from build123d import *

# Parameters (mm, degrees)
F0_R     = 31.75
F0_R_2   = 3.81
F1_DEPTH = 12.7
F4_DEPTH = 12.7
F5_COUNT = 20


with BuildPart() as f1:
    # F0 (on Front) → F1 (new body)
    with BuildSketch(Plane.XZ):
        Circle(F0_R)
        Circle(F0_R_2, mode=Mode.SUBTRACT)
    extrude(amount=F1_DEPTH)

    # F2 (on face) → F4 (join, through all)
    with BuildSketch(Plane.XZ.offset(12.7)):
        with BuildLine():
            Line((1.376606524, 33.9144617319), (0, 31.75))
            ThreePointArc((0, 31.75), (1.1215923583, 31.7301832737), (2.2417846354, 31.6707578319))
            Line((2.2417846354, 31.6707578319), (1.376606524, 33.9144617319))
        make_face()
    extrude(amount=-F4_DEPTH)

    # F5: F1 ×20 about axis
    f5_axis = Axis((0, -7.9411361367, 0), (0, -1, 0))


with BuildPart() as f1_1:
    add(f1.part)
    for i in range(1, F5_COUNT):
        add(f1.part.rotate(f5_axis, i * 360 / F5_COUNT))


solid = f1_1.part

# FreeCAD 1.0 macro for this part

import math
import FreeCAD as App
import Part
import Sketcher

V = App.Vector
Q = App.Units.Quantity

doc = App.newDocument("Part")
body = doc.addObject("PartDesign::Body", "Body")

# Sketch on XZ plane
sketch1 = body.newObject("Sketcher::SketchObject", "Sketch")
sketch1.AttachmentSupport = (doc.getObject("XZ_Plane"), [""])
sketch1.MapMode = "FlatFace"
sketch1.addGeometry([
    Part.Circle(V(0, 0, 0), V(0, 0, 1), 31.8),
    Part.Circle(V(0, 0, 0), V(0, 0, 1), 3.8),
], False)
sketch1.addConstraint([
    Sketcher.Constraint("Coincident", 0, 3, -1, 1),
    Sketcher.Constraint("Coincident", 1, 3, -1, 1),
    Sketcher.Constraint("Diameter", 0, Q("2.5 in")),
    Sketcher.Constraint("Diameter", 1, Q("0.3 in")),
])
pad1 = body.newObject("PartDesign::Pad", "Pad")
pad1.Profile = sketch1
pad1.Length = Q("0.5 in")

# Sketch on XZ plane
sketch2 = body.newObject("Sketcher::SketchObject", "Sketch001")
sketch2.AttachmentSupport = (doc.getObject("XZ_Plane"), [""])
sketch2.MapMode = "FlatFace"
sketch2.AttachmentOffset = App.Placement(V(0, 0, 0.5 * 25.4), App.Rotation())
sketch2.addGeometry([
    Part.LineSegment(V(1.4, 33.9, 0), V(0, 31.8, 0)),
    Part.ArcOfCircle(Part.Circle(V(0, 0, 0), V(0, 0, 1), 31.7), math.radians(85.95), math.radians(90)),
    Part.LineSegment(V(2.2, 31.7, 0), V(1.4, 33.9, 0)),
], False)
sketch2.addConstraint([
    Sketcher.Constraint("Coincident", 0, 2, 1, 2),
    Sketcher.Constraint("Coincident", 1, 1, 2, 1),
    Sketcher.Constraint("Coincident", 2, 2, 0, 1),
    Sketcher.Constraint("Coincident", 1, 3, -1, 1),
    Sketcher.Constraint("PointOnObject", 0, 2, -2),
    Sketcher.Constraint("Radius", 1, Q("1.25 in")),
    Sketcher.Constraint("Distance", 0, Q("2.565139 mm")),
    Sketcher.Constraint("DistanceY", -1, 1, 2, 2, Q("33.914462 mm")),
    Sketcher.Constraint("DistanceX", 2, 2, 1, 1, Q("0.865178 mm")),
])
pad2 = body.newObject("PartDesign::Pad", "Pad001")
pad2.Profile = sketch2
pad2.Length = Q("0.5 in")
pad2.Reversed = True
body2 = doc.addObject("PartDesign::Body", "Body001")
doc.recompute()

body2.BaseFeature = body
doc.recompute()

body3 = doc.addObject("PartDesign::Body", "Body002")
body3.BaseFeature = body
body3.Placement = App.Placement(V(0, 0, 0), App.Rotation(V(0, -1, 0), 18))
boolean = body2.newObject("PartDesign::Boolean", "Boolean")
boolean.Type = "Fuse"
boolean.addObjects([body3])
doc.recompute()

body4 = doc.addObject("PartDesign::Body", "Body003")
body4.BaseFeature = body
body4.Placement = App.Placement(V(0, 0, 0), App.Rotation(V(0, -1, 0), 36))
boolean2 = body2.newObject("PartDesign::Boolean", "Boolean001")
boolean2.Type = "Fuse"
boolean2.addObjects([body4])
doc.recompute()

body5 = doc.addObject("PartDesign::Body", "Body004")
body5.BaseFeature = body
body5.Placement = App.Placement(V(0, 0, 0), App.Rotation(V(0, -1, 0), 54))
boolean3 = body2.newObject("PartDesign::Boolean", "Boolean002")
boolean3.Type = "Fuse"
boolean3.addObjects([body5])
doc.recompute()

body6 = doc.addObject("PartDesign::Body", "Body005")
body6.BaseFeature = body
body6.Placement = App.Placement(V(0, 0, 0), App.Rotation(V(0, -1, 0), 72))
boolean4 = body2.newObject("PartDesign::Boolean", "Boolean003")
boolean4.Type = "Fuse"
boolean4.addObjects([body6])
doc.recompute()

body7 = doc.addObject("PartDesign::Body", "Body006")
body7.BaseFeature = body
body7.Placement = App.Placement(V(0, 0, 0), App.Rotation(V(0, -1, 0), 90))
boolean5 = body2.newObject("PartDesign::Boolean", "Boolean004")
boolean5.Type = "Fuse"
boolean5.addObjects([body7])
doc.recompute()

body8 = doc.addObject("PartDesign::Body", "Body007")
body8.BaseFeature = body
body8.Placement = App.Placement(V(0, 0, 0), App.Rotation(V(0, -1, 0), 108))
boolean6 = body2.newObject("PartDesign::Boolean", "Boolean005")
boolean6.Type = "Fuse"
boolean6.addObjects([body8])
doc.recompute()

body9 = doc.addObject("PartDesign::Body", "Body008")
body9.BaseFeature = body
body9.Placement = App.Placement(V(0, 0, 0), App.Rotation(V(0, -1, 0), 126))
boolean7 = body2.newObject("PartDesign::Boolean", "Boolean006")
boolean7.Type = "Fuse"
boolean7.addObjects([body9])
doc.recompute()

body10 = doc.addObject("PartDesign::Body", "Body009")
body10.BaseFeature = body
body10.Placement = App.Placement(V(0, 0, 0), App.Rotation(V(0, -1, 0), 144))
boolean8 = body2.newObject("PartDesign::Boolean", "Boolean007")
boolean8.Type = "Fuse"
boolean8.addObjects([body10])
doc.recompute()

body11 = doc.addObject("PartDesign::Body", "Body010")
body11.BaseFeature = body
body11.Placement = App.Placement(V(0, 0, 0), App.Rotation(V(0, -1, 0), 162))
boolean9 = body2.newObject("PartDesign::Boolean", "Boolean008")
boolean9.Type = "Fuse"
boolean9.addObjects([body11])
doc.recompute()

body12 = doc.addObject("PartDesign::Body", "Body011")
body12.BaseFeature = body
body12.Placement = App.Placement(V(0, 0, 0), App.Rotation(V(0, -1, 0), 180))
boolean10 = body2.newObject("PartDesign::Boolean", "Boolean009")
boolean10.Type = "Fuse"
boolean10.addObjects([body12])
doc.recompute()

body13 = doc.addObject("PartDesign::Body", "Body012")
body13.BaseFeature = body
body13.Placement = App.Placement(V(0, 0, 0), App.Rotation(V(0, -1, 0), 198))
boolean11 = body2.newObject("PartDesign::Boolean", "Boolean010")
boolean11.Type = "Fuse"
boolean11.addObjects([body13])
doc.recompute()

body14 = doc.addObject("PartDesign::Body", "Body013")
body14.BaseFeature = body
body14.Placement = App.Placement(V(0, 0, 0), App.Rotation(V(0, -1, 0), 216))
boolean12 = body2.newObject("PartDesign::Boolean", "Boolean011")
boolean12.Type = "Fuse"
boolean12.addObjects([body14])
doc.recompute()

body15 = doc.addObject("PartDesign::Body", "Body014")
body15.BaseFeature = body
body15.Placement = App.Placement(V(0, 0, 0), App.Rotation(V(0, -1, 0), 234))
boolean13 = body2.newObject("PartDesign::Boolean", "Boolean012")
boolean13.Type = "Fuse"
boolean13.addObjects([body15])
doc.recompute()

body16 = doc.addObject("PartDesign::Body", "Body015")
body16.BaseFeature = body
body16.Placement = App.Placement(V(0, 0, 0), App.Rotation(V(0, -1, 0), 252))
boolean14 = body2.newObject("PartDesign::Boolean", "Boolean013")
boolean14.Type = "Fuse"
boolean14.addObjects([body16])
doc.recompute()

body17 = doc.addObject("PartDesign::Body", "Body016")
body17.BaseFeature = body
body17.Placement = App.Placement(V(0, 0, 0), App.Rotation(V(0, -1, 0), 270))
boolean15 = body2.newObject("PartDesign::Boolean", "Boolean014")
boolean15.Type = "Fuse"
boolean15.addObjects([body17])
doc.recompute()

body18 = doc.addObject("PartDesign::Body", "Body017")
body18.BaseFeature = body
body18.Placement = App.Placement(V(0, 0, 0), App.Rotation(V(0, -1, 0), 288))
boolean16 = body2.newObject("PartDesign::Boolean", "Boolean015")
boolean16.Type = "Fuse"
boolean16.addObjects([body18])
doc.recompute()

body19 = doc.addObject("PartDesign::Body", "Body018")
body19.BaseFeature = body
body19.Placement = App.Placement(V(0, 0, 0), App.Rotation(V(0, -1, 0), 306))
boolean17 = body2.newObject("PartDesign::Boolean", "Boolean016")
boolean17.Type = "Fuse"
boolean17.addObjects([body19])
doc.recompute()

body20 = doc.addObject("PartDesign::Body", "Body019")
body20.BaseFeature = body
body20.Placement = App.Placement(V(0, 0, 0), App.Rotation(V(0, -1, 0), 324))
boolean18 = body2.newObject("PartDesign::Boolean", "Boolean017")
boolean18.Type = "Fuse"
boolean18.addObjects([body20])
doc.recompute()

body.Placement = App.Placement(V(0, 0, 0), App.Rotation(V(0, -1, 0), 342))
boolean19 = body2.newObject("PartDesign::Boolean", "Boolean018")
boolean19.Type = "Fuse"
boolean19.addObjects([body])

doc.recompute()
